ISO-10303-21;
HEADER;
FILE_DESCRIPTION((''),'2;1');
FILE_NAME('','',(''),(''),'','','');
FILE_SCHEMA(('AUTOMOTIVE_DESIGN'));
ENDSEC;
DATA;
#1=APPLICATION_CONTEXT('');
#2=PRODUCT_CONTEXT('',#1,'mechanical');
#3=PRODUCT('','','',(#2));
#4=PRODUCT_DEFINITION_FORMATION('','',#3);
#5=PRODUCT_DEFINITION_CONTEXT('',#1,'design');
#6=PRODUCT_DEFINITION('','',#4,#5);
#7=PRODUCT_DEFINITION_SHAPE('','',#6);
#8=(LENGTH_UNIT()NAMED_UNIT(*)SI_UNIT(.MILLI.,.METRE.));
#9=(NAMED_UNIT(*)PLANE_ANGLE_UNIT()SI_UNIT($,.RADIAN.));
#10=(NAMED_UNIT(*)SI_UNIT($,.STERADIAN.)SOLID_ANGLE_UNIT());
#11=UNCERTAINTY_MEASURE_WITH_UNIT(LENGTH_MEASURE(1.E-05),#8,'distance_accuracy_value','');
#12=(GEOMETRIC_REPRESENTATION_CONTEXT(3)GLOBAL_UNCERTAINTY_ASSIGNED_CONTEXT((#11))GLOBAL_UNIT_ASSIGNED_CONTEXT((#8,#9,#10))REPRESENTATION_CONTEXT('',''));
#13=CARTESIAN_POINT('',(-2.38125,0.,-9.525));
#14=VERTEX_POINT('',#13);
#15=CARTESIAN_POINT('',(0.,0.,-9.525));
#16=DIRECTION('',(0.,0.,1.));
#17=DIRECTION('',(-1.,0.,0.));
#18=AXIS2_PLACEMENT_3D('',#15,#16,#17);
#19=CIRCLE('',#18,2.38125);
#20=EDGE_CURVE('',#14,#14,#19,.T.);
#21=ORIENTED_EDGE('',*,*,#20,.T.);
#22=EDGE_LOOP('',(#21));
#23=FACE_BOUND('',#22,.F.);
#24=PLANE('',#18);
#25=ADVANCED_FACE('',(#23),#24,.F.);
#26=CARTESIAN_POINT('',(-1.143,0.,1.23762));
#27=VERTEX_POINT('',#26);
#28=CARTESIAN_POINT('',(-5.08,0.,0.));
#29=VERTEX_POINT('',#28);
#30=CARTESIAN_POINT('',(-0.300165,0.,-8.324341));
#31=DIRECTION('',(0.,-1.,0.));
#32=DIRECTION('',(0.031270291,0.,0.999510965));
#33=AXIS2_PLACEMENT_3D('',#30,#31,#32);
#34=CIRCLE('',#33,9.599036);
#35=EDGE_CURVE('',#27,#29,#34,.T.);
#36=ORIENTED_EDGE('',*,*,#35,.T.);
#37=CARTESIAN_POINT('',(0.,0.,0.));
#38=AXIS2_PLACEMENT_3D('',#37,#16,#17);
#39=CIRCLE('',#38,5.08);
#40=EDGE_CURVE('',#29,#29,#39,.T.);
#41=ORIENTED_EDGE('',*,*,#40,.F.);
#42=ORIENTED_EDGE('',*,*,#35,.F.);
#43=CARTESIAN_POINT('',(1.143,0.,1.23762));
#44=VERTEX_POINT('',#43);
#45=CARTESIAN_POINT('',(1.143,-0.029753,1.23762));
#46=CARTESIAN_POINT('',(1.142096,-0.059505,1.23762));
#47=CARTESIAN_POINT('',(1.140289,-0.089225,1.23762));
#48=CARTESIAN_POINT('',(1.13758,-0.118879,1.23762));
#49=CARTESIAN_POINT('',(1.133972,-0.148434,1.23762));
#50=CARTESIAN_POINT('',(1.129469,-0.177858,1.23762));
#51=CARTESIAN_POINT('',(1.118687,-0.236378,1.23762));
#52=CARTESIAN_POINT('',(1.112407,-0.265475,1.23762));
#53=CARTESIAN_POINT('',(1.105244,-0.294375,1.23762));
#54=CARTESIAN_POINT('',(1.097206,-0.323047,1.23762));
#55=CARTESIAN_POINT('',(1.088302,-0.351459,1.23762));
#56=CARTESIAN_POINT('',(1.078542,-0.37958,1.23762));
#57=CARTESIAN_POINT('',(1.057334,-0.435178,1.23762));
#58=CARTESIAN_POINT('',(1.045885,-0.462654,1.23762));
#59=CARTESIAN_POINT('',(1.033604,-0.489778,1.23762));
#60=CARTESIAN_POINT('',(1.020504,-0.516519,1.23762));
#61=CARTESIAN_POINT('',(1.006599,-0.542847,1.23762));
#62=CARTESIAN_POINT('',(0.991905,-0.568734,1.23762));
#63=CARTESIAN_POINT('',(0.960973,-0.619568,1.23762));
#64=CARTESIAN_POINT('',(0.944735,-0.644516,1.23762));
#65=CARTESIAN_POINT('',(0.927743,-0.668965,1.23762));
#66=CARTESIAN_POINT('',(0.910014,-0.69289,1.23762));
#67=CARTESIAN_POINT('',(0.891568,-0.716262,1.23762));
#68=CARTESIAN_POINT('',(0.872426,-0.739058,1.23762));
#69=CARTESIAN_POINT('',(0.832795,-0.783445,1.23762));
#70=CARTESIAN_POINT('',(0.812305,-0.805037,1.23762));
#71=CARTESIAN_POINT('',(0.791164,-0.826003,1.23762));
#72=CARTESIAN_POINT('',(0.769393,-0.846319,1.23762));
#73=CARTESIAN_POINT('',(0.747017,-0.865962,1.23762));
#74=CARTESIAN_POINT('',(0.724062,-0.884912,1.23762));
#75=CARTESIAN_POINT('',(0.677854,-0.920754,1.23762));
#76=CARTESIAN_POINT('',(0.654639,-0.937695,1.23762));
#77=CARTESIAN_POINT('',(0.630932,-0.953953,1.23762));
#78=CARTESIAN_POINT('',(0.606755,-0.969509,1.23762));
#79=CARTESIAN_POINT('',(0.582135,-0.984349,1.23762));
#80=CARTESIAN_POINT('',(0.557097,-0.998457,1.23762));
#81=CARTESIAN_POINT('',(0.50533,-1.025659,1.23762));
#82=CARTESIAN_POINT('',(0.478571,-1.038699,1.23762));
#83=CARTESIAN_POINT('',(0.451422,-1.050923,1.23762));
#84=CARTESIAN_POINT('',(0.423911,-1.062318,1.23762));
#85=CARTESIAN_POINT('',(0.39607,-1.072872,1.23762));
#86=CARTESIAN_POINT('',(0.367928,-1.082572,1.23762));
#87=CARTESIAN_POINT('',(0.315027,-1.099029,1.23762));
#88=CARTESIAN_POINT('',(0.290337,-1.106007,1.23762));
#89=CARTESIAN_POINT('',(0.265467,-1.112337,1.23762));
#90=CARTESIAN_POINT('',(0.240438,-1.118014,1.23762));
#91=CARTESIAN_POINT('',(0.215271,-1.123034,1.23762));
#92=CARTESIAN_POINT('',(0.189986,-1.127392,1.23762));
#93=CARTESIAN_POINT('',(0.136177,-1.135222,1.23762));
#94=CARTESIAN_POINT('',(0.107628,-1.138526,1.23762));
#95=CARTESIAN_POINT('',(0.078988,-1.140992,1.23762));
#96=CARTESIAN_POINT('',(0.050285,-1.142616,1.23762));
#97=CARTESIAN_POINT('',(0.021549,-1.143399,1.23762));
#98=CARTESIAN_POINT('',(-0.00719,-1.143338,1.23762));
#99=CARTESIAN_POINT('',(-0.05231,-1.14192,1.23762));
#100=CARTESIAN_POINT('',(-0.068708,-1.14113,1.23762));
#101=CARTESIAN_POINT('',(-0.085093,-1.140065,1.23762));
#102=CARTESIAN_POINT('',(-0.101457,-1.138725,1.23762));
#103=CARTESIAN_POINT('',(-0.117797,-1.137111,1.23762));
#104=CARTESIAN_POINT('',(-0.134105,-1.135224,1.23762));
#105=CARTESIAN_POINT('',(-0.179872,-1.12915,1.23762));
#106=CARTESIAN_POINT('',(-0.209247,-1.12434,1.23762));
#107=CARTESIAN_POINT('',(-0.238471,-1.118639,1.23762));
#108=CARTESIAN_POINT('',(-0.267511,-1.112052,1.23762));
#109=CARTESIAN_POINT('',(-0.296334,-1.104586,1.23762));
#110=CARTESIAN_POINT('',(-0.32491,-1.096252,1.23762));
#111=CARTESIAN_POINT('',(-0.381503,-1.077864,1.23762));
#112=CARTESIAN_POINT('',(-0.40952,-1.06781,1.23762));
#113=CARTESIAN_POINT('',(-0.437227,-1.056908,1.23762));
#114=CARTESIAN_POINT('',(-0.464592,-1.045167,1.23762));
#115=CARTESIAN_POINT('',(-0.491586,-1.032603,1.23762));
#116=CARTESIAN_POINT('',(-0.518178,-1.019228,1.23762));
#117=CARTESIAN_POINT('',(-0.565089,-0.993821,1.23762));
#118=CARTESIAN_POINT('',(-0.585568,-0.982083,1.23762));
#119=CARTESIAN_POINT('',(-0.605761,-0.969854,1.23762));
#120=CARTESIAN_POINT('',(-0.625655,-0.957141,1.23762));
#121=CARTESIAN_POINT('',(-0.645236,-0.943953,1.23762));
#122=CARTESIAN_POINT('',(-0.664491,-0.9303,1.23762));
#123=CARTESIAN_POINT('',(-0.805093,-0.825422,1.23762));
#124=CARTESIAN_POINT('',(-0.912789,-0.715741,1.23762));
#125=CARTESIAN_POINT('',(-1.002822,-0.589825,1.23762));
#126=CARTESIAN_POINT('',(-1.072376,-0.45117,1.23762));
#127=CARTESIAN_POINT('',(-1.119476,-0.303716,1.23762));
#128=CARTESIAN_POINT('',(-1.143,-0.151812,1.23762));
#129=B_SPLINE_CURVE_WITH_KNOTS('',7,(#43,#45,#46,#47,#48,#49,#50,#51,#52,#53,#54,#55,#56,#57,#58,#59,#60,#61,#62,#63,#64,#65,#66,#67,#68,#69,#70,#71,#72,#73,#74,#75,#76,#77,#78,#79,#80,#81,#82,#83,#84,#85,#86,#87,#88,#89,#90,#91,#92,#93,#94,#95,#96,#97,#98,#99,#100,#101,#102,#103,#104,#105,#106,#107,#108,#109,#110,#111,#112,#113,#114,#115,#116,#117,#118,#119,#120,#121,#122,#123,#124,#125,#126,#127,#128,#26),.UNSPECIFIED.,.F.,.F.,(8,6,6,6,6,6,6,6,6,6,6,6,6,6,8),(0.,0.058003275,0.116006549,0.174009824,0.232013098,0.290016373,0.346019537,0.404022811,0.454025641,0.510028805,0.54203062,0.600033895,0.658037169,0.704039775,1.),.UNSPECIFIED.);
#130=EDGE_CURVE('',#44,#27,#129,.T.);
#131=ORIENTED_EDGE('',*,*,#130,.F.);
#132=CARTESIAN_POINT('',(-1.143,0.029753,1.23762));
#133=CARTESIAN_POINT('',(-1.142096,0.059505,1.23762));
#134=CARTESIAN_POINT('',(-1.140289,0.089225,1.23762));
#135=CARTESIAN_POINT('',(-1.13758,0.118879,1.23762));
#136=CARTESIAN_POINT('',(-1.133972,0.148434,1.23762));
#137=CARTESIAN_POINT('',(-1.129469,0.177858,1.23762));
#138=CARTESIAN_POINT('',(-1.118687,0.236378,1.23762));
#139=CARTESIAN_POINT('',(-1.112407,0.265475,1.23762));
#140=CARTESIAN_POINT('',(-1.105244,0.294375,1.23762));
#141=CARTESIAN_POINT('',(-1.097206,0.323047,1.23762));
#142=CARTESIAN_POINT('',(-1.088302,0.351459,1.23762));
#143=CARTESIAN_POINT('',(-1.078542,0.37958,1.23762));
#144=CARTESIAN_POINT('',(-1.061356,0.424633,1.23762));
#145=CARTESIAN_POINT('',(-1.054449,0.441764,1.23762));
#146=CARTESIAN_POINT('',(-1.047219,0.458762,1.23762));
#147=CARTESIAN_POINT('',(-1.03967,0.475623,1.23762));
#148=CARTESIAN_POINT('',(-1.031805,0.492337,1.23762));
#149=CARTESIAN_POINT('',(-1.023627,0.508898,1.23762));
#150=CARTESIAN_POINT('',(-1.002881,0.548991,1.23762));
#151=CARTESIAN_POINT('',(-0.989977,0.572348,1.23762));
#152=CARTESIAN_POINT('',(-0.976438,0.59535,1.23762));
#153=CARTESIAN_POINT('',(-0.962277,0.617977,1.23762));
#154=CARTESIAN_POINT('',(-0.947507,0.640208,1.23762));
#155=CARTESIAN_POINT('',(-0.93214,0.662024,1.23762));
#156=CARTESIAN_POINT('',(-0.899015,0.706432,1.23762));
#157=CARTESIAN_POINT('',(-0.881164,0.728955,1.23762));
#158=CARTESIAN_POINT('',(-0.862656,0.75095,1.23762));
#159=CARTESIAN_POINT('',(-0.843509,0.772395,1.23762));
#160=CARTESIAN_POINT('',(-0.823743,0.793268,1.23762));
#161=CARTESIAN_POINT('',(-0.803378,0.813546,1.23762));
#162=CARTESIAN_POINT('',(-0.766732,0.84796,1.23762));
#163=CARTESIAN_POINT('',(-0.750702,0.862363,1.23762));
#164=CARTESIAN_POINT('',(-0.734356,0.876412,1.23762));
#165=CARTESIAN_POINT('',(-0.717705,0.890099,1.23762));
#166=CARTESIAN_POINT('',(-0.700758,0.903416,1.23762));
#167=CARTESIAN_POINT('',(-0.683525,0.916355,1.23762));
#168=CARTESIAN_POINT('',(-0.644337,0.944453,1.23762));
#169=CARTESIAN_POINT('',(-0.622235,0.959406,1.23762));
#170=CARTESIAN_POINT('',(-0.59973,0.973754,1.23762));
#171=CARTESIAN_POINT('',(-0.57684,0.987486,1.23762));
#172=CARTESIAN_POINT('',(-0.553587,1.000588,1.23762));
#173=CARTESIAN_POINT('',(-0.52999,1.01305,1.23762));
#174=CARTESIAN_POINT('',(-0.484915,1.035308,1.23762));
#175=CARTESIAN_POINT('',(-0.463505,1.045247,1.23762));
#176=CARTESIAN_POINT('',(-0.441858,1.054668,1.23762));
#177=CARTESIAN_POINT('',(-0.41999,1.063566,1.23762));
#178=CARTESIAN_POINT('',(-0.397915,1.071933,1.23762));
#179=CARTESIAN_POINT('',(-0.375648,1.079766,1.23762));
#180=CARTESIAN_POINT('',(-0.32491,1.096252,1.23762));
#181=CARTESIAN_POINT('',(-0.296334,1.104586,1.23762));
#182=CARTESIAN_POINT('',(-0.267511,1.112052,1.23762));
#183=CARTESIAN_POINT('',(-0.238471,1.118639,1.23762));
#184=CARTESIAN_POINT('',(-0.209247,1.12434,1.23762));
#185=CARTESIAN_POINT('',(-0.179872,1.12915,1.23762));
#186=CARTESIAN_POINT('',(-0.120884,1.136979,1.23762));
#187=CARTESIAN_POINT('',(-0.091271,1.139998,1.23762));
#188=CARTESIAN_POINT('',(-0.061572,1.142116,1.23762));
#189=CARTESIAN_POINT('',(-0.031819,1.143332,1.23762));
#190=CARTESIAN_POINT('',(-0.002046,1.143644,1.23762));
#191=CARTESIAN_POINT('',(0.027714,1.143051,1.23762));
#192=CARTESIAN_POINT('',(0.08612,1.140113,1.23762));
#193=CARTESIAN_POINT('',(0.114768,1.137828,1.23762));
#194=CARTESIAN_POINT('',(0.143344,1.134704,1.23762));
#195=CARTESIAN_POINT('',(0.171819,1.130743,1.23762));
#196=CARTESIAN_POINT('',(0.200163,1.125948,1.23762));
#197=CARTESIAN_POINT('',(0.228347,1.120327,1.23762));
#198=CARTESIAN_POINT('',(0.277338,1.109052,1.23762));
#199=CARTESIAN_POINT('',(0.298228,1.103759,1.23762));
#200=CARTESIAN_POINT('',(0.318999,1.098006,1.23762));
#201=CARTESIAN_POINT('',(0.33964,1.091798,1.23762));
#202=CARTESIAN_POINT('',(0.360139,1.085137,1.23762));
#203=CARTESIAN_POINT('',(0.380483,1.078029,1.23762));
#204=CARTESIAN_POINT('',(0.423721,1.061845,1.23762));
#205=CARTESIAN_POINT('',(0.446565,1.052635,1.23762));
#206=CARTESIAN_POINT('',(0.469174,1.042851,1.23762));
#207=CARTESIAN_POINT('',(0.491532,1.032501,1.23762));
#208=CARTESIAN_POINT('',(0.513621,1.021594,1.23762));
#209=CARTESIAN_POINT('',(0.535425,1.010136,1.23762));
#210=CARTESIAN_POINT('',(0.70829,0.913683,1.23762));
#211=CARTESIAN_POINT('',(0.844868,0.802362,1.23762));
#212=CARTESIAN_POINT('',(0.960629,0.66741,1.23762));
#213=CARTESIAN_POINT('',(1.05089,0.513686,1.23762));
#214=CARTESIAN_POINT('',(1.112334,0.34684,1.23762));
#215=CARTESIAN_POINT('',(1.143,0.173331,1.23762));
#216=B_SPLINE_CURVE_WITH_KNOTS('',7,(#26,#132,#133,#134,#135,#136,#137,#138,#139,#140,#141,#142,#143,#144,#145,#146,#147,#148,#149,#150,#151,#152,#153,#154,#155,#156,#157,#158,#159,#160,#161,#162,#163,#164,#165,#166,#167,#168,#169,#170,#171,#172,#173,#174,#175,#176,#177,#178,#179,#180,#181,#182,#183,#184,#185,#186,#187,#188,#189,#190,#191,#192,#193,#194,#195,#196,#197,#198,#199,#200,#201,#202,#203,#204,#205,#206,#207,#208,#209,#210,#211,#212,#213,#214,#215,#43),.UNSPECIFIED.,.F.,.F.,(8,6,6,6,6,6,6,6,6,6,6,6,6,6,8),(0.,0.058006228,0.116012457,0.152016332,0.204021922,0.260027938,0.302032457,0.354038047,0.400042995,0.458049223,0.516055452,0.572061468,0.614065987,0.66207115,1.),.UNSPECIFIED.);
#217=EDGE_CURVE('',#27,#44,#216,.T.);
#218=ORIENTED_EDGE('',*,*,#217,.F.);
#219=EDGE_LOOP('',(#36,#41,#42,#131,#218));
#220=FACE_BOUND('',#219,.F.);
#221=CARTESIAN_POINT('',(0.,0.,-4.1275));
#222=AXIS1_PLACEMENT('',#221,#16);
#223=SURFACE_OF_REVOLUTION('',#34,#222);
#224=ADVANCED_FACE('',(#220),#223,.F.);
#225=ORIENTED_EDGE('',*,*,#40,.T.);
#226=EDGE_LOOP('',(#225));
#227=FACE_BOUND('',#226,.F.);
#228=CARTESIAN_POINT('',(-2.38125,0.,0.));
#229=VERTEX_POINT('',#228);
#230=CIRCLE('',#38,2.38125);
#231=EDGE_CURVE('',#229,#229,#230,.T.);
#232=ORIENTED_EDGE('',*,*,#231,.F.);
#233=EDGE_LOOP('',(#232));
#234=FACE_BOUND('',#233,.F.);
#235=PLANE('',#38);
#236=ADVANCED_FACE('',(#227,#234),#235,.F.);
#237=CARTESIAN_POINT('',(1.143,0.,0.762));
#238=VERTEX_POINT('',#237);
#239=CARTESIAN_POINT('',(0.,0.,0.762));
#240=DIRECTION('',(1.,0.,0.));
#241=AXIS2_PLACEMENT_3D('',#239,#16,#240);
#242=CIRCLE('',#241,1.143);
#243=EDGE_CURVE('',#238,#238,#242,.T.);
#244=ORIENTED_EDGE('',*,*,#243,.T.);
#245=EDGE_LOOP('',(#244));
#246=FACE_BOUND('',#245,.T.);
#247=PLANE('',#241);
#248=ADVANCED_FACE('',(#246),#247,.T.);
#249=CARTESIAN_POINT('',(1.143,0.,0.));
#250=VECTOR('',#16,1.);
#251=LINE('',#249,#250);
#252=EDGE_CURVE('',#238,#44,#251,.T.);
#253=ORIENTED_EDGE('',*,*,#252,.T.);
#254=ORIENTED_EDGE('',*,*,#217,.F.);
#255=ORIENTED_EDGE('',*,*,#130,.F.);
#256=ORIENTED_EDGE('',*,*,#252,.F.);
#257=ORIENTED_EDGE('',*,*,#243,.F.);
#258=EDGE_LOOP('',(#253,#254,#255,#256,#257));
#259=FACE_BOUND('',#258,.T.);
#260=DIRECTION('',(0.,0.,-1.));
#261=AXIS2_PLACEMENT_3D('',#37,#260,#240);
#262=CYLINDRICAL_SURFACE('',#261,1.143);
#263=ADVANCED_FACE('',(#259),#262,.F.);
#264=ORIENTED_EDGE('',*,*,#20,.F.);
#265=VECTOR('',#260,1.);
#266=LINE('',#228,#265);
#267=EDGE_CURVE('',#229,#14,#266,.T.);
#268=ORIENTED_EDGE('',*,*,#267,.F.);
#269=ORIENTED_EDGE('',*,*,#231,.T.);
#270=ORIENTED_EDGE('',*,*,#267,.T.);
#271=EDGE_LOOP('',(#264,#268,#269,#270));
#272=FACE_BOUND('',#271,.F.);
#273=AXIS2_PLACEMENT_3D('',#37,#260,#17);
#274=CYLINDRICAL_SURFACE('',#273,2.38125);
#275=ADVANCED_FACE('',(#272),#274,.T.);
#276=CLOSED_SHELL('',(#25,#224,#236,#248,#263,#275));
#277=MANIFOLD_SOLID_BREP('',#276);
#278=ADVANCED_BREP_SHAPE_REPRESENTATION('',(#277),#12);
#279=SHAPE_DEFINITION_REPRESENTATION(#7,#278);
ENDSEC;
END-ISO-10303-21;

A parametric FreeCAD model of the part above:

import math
import FreeCAD as App
import Part
import Sketcher
from FreeCAD import Vector
Q = App.Units.Quantity

doc = App.newDocument("Part")
params = doc.addObject("Spreadsheet::Sheet", "Params")
for row, (alias, value) in enumerate([
    ("sketch1_width", "0.09375 in"),
    ("sketch1_height", "0.375 in"),
    ("sketch1_height2", "0.425 in"),
    ("revolution_angle", "360 deg"),
    ("sketch2_diameter", "0.09 in"),
    ("sketch3_diameter", "0.09 in"),
    ("pad1_length", "0.03 in"),
], start=1):
    params.set(f"A{row}", alias)
    params.set(f"B{row}", "=" + value)
    params.setAlias(f"B{row}", alias)

body = doc.addObject("PartDesign::Body", "Body")

# Sketch on XZ plane
sketch1 = doc.addObject("Sketcher::SketchObject", "Sketch")
body.addObject(sketch1)
sketch1.AttachmentSupport = (doc.XZ_Plane, [""])
sketch1.MapMode = "FlatFace"
sketch1.addGeometry([
    Part.ArcOfCircle(Part.Circle(Vector(-0.3, -8.3, 0), Vector(0, 0, 1), 9.6), math.radians(88), math.radians(120)),  # 0
    Part.LineSegment(Vector(-5.1, 0, 0), Vector(-2.4, 0, 0)),  # 1
    Part.LineSegment(Vector(-2.4, 0, 0), Vector(-2.4, -9.5, 0)),  # 2
    Part.LineSegment(Vector(-2.4, -9.5, 0), Vector(0, -9.5, 0)),  # 3
    Part.LineSegment(Vector(0, -9.5, 0), Vector(0, 1.3, 0)),  # 4
], False)
sketch1.addConstraint([
    Sketcher.Constraint("Coincident", 0, 2, 1, 1),
    Sketcher.Constraint("Coincident", 1, 2, 2, 1),
    Sketcher.Constraint("Coincident", 2, 2, 3, 1),
    Sketcher.Constraint("Coincident", 3, 2, 4, 1),
    Sketcher.Constraint("Coincident", 4, 2, 0, 1),
    Sketcher.Constraint("Horizontal", 1),
    Sketcher.Constraint("Vertical", 2),
    Sketcher.Constraint("Horizontal", 3),
    Sketcher.Constraint("Vertical", 4),
    Sketcher.Constraint("PointOnObject", 0, 2, -1),
    Sketcher.Constraint("PointOnObject", 3, 2, -2),
    Sketcher.Constraint("DistanceX", 0, 2, -1, 1, Q("0.2 in")),
    Sketcher.Constraint("DistanceX", 3, 1, 3, 2, Q("0.09375 in")),
    Sketcher.Constraint("DistanceY", 2, 2, 2, 1, Q("0.375 in")),
    Sketcher.Constraint("DistanceY", 4, 1, 4, 2, Q("0.425 in")),
    Sketcher.Constraint("Radius", 0, 9.599036),
])
sketch1.setExpression("Constraints[12]", "Params.sketch1_width")
sketch1.setExpression("Constraints[13]", "Params.sketch1_height")
sketch1.setExpression("Constraints[14]", "Params.sketch1_height2")
revolution = doc.addObject("PartDesign::Revolution", "Revolution")
body.addObject(revolution)
revolution.Profile = sketch1
revolution.ReferenceAxis = (sketch1, ["V_Axis"])
revolution.setExpression("Angle", "Params.revolution_angle")

# Sketch on XY plane
sketch2 = doc.addObject("Sketcher::SketchObject", "Sketch001")
body.addObject(sketch2)
sketch2.AttachmentSupport = (doc.XY_Plane, [""])
sketch2.MapMode = "FlatFace"
sketch2.addGeometry(Part.Circle(Vector(0, 0, 0), Vector(0, 0, 1), 1.1), False)
sketch2.addConstraint([
    Sketcher.Constraint("Coincident", 0, 3, -1, 1),
    Sketcher.Constraint("Diameter", 0, Q("0.09 in")),
])
sketch2.setExpression("Constraints[1]", "Params.sketch2_diameter")
pocket1 = doc.addObject("PartDesign::Pocket", "Pocket")
body.addObject(pocket1)
pocket1.Profile = sketch2
pocket1.Type = "ThroughAll"
pocket1.Reversed = True

# Sketch on XY plane
sketch3 = doc.addObject("Sketcher::SketchObject", "Sketch002")
body.addObject(sketch3)
sketch3.AttachmentSupport = (doc.XY_Plane, [""])
sketch3.MapMode = "FlatFace"
sketch3.addGeometry(Part.Circle(Vector(0, 0, 0), Vector(0, 0, 1), 1.1), False)
sketch3.addConstraint([
    Sketcher.Constraint("Coincident", 0, 3, -1, 1),
    Sketcher.Constraint("Diameter", 0, Q("0.09 in")),
])
sketch3.setExpression("Constraints[1]", "Params.sketch3_diameter")
pad1 = doc.addObject("PartDesign::Pad", "Pad")
body.addObject(pad1)
pad1.Profile = sketch3
pad1.setExpression("Length", "Params.pad1_length")

doc.recompute()
